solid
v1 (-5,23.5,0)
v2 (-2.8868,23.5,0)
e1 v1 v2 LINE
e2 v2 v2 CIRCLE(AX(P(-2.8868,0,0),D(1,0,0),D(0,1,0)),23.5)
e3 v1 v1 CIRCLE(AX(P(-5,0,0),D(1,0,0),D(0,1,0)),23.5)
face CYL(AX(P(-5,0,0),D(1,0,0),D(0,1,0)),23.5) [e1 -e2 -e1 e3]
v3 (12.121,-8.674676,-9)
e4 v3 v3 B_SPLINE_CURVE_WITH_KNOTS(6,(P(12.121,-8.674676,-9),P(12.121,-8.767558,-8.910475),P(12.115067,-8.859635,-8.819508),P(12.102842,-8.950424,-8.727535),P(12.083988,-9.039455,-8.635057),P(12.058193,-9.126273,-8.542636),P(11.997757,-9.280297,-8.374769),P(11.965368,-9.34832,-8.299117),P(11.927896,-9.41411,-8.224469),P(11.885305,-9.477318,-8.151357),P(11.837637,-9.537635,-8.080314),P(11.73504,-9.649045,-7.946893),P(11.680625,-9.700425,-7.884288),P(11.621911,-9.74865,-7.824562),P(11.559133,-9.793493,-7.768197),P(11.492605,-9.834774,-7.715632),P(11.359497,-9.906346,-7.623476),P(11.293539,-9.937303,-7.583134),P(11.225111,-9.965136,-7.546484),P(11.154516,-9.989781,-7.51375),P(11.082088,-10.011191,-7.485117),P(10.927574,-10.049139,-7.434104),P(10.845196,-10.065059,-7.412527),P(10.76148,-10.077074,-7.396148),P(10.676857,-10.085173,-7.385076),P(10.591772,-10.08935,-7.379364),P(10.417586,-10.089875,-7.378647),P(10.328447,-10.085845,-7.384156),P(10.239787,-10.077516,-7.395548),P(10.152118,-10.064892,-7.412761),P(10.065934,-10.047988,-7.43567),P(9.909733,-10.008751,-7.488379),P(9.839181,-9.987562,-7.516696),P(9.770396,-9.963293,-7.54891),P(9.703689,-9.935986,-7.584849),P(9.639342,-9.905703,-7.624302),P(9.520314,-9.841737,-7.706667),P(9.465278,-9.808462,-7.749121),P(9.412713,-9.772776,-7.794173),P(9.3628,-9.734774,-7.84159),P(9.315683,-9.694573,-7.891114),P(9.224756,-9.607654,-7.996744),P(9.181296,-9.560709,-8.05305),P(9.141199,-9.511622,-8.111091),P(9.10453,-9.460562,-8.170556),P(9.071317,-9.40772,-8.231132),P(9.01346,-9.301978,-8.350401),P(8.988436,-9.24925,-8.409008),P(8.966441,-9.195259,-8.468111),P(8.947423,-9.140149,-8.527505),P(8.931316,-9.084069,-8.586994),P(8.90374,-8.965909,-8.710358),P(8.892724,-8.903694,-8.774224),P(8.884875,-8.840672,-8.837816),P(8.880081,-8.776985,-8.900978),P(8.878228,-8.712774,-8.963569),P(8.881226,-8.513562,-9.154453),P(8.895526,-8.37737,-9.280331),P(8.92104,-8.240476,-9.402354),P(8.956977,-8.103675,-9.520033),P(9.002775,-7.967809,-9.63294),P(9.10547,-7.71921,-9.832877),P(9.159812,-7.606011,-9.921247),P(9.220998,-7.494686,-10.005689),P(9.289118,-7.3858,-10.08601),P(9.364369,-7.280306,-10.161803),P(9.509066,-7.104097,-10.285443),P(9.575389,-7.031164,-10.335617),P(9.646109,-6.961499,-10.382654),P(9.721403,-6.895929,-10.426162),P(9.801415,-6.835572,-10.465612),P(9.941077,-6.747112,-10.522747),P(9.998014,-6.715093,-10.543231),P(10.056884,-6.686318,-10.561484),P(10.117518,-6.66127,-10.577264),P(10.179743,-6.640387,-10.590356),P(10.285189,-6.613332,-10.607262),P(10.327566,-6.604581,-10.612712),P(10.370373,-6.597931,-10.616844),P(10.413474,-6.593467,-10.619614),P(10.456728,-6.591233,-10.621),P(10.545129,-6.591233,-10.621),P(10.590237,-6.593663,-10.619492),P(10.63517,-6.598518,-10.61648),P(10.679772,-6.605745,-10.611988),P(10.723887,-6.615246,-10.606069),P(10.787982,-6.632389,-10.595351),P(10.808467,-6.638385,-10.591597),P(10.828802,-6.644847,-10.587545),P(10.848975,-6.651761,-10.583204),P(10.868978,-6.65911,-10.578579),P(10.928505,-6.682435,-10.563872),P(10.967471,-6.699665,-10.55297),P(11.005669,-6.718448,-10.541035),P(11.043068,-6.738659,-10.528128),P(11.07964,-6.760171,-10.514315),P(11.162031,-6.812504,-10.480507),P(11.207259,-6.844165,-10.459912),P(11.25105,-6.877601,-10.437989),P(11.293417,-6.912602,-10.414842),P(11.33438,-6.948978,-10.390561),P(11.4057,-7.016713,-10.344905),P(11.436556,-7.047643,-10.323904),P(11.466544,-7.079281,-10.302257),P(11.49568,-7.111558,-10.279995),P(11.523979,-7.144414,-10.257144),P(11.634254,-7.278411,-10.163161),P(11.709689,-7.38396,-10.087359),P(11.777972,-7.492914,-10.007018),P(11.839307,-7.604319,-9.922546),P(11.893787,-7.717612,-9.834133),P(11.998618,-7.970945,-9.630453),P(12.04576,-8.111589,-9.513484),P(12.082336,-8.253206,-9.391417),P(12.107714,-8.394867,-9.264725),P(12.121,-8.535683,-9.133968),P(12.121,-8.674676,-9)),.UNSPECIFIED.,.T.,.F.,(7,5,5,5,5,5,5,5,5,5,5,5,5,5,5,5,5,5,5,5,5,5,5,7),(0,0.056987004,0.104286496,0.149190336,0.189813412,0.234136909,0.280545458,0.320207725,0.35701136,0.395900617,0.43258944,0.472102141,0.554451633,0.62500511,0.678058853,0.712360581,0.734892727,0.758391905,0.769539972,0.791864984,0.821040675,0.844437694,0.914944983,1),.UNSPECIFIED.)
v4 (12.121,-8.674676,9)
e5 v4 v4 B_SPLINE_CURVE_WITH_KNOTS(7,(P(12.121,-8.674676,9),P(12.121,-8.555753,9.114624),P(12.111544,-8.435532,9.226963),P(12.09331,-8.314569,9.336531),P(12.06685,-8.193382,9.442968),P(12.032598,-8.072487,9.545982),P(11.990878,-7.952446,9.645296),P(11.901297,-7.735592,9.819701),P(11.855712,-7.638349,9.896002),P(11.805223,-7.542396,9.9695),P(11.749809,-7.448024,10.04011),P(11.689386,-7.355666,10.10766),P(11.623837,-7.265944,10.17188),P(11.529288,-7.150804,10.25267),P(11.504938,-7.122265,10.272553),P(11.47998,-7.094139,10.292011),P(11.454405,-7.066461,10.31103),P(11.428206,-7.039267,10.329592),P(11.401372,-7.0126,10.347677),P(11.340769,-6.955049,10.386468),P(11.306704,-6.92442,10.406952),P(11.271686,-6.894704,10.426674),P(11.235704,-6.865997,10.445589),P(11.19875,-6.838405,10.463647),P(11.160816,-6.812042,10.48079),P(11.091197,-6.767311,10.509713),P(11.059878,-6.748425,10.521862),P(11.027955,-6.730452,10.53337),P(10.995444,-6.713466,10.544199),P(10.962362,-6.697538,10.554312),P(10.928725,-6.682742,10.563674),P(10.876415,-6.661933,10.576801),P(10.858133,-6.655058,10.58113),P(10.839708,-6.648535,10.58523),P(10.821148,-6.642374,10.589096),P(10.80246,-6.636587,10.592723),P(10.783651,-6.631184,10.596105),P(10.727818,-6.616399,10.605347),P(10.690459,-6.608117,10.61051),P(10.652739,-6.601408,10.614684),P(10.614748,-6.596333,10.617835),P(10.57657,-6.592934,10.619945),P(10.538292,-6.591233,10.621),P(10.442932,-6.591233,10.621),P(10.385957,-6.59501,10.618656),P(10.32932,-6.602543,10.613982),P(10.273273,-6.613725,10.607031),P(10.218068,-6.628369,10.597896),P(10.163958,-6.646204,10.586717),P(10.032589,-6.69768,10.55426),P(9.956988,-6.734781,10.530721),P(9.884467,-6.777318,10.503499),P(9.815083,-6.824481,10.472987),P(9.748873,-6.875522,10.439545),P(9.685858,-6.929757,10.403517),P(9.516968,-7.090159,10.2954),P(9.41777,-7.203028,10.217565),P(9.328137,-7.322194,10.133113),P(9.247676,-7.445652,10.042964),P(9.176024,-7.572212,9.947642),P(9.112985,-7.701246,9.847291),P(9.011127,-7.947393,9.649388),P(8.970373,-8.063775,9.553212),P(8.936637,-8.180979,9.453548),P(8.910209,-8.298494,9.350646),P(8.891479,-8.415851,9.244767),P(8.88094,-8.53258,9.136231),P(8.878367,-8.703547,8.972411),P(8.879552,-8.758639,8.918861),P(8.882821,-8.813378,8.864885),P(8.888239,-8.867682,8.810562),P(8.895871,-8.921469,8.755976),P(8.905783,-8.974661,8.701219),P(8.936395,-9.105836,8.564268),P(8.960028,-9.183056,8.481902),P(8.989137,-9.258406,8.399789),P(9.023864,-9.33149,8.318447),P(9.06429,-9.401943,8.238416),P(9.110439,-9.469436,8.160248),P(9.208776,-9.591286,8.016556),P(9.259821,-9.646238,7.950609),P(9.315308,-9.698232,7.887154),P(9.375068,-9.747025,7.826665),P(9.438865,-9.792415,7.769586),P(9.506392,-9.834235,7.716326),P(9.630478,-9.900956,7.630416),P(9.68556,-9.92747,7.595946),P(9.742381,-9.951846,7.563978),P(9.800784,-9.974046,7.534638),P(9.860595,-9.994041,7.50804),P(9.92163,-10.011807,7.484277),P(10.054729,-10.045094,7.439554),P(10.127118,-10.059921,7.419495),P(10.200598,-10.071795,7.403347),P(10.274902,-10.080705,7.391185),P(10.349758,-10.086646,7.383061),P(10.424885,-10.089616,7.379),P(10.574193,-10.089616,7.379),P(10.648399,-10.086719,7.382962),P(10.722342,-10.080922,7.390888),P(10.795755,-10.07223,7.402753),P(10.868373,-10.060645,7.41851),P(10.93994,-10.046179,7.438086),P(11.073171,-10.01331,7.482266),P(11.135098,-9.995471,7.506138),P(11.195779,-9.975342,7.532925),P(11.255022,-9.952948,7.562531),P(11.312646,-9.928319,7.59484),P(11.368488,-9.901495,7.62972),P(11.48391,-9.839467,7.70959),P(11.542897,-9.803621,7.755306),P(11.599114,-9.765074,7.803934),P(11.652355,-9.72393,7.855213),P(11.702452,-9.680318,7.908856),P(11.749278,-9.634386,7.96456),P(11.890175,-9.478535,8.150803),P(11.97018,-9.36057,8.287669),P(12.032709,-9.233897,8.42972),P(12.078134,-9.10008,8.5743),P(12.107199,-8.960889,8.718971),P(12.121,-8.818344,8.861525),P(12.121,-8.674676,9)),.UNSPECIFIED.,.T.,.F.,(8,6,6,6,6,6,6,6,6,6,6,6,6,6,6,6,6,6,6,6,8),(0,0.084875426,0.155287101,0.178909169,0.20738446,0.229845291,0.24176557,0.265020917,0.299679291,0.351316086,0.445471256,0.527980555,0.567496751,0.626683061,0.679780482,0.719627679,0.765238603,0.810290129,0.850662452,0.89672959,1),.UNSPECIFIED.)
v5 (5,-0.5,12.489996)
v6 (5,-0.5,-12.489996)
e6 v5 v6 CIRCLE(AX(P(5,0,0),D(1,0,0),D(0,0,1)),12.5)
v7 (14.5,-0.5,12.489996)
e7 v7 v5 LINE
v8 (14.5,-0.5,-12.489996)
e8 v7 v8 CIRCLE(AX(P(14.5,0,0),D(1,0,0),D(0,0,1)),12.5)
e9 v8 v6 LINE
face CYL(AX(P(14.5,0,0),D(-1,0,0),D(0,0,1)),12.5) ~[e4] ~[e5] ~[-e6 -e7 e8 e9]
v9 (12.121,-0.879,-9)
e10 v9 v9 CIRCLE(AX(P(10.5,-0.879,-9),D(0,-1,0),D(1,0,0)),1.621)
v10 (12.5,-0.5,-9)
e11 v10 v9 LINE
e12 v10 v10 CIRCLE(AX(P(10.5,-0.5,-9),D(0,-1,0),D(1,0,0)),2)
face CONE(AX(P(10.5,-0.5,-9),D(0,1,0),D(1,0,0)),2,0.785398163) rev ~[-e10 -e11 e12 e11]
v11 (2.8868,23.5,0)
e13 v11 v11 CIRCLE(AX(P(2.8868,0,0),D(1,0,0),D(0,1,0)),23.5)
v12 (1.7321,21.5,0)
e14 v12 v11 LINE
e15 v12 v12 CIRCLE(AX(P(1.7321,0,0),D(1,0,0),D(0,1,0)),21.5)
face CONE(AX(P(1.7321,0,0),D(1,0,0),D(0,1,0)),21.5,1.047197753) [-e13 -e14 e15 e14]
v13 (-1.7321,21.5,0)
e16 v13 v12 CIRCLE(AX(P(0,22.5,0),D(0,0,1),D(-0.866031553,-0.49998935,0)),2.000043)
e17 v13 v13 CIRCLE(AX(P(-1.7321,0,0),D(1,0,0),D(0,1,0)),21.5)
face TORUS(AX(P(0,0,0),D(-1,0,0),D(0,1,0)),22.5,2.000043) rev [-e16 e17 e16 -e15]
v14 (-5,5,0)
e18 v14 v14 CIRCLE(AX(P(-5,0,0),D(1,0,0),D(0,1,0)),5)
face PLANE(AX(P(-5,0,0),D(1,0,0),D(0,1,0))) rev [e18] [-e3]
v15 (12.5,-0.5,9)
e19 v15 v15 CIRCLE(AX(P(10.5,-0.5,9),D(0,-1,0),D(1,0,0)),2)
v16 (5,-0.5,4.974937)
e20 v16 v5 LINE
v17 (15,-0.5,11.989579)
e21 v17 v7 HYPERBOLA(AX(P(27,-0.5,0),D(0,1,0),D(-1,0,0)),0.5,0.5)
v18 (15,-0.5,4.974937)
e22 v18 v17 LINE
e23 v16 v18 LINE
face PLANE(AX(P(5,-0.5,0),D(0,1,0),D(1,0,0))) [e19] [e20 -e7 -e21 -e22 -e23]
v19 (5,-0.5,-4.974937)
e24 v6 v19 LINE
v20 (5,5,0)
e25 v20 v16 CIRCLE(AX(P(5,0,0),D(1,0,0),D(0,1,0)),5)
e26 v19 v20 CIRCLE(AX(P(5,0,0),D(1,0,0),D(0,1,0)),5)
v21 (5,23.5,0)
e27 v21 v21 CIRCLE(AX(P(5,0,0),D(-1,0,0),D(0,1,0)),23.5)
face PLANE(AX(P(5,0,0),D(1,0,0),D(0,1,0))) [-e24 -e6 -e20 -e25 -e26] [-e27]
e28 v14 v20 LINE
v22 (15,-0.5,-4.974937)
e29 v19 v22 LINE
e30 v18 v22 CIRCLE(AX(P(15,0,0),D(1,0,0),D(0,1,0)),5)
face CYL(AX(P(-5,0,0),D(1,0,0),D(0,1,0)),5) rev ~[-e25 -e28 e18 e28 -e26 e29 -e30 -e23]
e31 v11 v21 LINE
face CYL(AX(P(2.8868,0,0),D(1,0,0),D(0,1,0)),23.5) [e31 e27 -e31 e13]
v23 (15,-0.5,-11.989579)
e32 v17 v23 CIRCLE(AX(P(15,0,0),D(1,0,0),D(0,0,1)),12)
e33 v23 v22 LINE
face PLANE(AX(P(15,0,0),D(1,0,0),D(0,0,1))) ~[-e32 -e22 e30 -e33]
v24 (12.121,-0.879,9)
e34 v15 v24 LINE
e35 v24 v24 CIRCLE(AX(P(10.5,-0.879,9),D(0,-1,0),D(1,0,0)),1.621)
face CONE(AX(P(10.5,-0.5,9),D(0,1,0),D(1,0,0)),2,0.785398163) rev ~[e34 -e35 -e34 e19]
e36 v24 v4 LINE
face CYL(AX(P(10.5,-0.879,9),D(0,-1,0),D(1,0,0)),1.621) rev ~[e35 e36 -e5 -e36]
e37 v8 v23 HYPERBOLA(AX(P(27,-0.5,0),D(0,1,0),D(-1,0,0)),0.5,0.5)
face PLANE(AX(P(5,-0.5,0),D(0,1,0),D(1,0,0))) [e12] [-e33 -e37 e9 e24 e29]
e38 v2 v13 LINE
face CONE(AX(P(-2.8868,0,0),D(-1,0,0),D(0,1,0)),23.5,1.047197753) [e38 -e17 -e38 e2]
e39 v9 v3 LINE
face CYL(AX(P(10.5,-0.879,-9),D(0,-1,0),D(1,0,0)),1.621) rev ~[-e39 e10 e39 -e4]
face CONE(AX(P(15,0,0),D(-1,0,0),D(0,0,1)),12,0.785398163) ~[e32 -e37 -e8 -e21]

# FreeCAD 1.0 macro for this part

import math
import FreeCAD as App
import Part
import Sketcher
Q = App.Units.Quantity


def add_polygon(sketch, points):
    """Adds a closed chain of lines whose ends are joined by coincident constraints."""
    first, n = sketch.GeometryCount, len(points)
    for a, b in zip(points, points[1:] + points[:1]):
        sketch.addGeometry(Part.LineSegment(App.Vector(*a, 0), App.Vector(*b, 0)), False)
    for i in range(n):
        sketch.addConstraint(Sketcher.Constraint("Coincident", first + i, 2, first + (i + 1) % n, 1))

doc = App.newDocument("Part")
body = doc.addObject("PartDesign::Body", "Body")

sketch1 = body.newObject("Sketcher::SketchObject", "Sketch")
sketch1.AttachmentSupport = (doc.getObject("XY_Plane"), [""])
sketch1.MapMode = "FlatFace"
sketch1.addGeometry([
    Part.LineSegment(App.Vector(-5, 0, 0), App.Vector(5, 0, 0)),
    Part.LineSegment(App.Vector(5, 0, 0), App.Vector(5, 23.5, 0)),
    Part.LineSegment(App.Vector(5, 23.5, 0), App.Vector(2.9, 23.5, 0)),
    Part.LineSegment(App.Vector(2.9, 23.5, 0), App.Vector(1.7, 21.5, 0)),
    Part.ArcOfCircle(Part.Circle(App.Vector(0, 22.5, 0), App.Vector(0, 0, 1), 2), math.radians(-150), math.radians(-30)),
    Part.LineSegment(App.Vector(-1.7, 21.5, 0), App.Vector(-2.9, 23.5, 0)),
    Part.LineSegment(App.Vector(-2.9, 23.5, 0), App.Vector(-5, 23.5, 0)),
    Part.LineSegment(App.Vector(-5, 23.5, 0), App.Vector(-5, 0, 0)),
], False)
sketch1.addConstraint([
    Sketcher.Constraint("Coincident", 0, 2, 1, 1),
    Sketcher.Constraint("Coincident", 1, 2, 2, 1),
    Sketcher.Constraint("Coincident", 2, 2, 3, 1),
    Sketcher.Constraint("Tangent", 3, 2, 4, 2),
    Sketcher.Constraint("Tangent", 4, 1, 5, 1),
    Sketcher.Constraint("Coincident", 5, 2, 6, 1),
    Sketcher.Constraint("Coincident", 6, 2, 7, 1),
    Sketcher.Constraint("Coincident", 7, 2, 0, 1),
    Sketcher.Constraint("Horizontal", 0),
    Sketcher.Constraint("Vertical", 1),
    Sketcher.Constraint("Horizontal", 2),
    Sketcher.Constraint("Horizontal", 6),
    Sketcher.Constraint("Vertical", 7),
    Sketcher.Constraint("Symmetric", 0, 2, 7, 2, -1, 1),
    Sketcher.Constraint("Symmetric", 3, 2, 4, 1, -2),
    Sketcher.Constraint("Horizontal", 2, 2, 5, 2),
    Sketcher.Constraint("Radius", 4, Q("2 mm")),
    Sketcher.Constraint("DistanceX", 0, 1, 0, 2, Q("10 mm")),
    Sketcher.Constraint("Angle", 3, Q("-120 deg")),
    Sketcher.Constraint("DistanceY", 1, 1, 1, 2, Q("23.5 mm")),
    Sketcher.Constraint("DistanceY", 4, 3, 1, 2, Q("1 mm")),
])
revolution = body.newObject("PartDesign::Revolution", "Revolution")
revolution.Profile = sketch1
revolution.ReferenceAxis = (sketch1, ["H_Axis"])
revolution.Angle = 360

sketch2 = body.newObject("Sketcher::SketchObject", "Sketch001")
sketch2.AttachmentSupport = (doc.getObject("XY_Plane"), [""])
sketch2.MapMode = "FlatFace"
add_polygon(sketch2, [(15, 0), (5, 0), (5, -12.5), (14.5, -12.5), (15, -12)])
sketch2.addConstraint([
    Sketcher.Constraint("Horizontal", 0),
    Sketcher.Constraint("Vertical", 1),
    Sketcher.Constraint("Horizontal", 2),
    Sketcher.Constraint("Vertical", 4),
    Sketcher.Constraint("PointOnObject", 0, 2, -1),
    Sketcher.Constraint("DistanceX", 0, 2, 0, 1, Q("10 mm")),
    Sketcher.Constraint("DistanceY", 4, 1, 4, 2, Q("12 mm")),
    Sketcher.Constraint("Angle", 3, Q("45 deg")),
    Sketcher.Constraint("DistanceX", 2, 1, 2, 2, Q("9.5 mm")),
    Sketcher.Constraint("DistanceX", -1, 1, 0, 2, Q("5 mm")),
])
revolution2 = body.newObject("PartDesign::Revolution", "Revolution001")
revolution2.Profile = sketch2
revolution2.ReferenceAxis = (sketch2, ["H_Axis"])
revolution2.Angle = 180
revolution2.Midplane = True

sketch3 = body.newObject("Sketcher::SketchObject", "Sketch002")
sketch3.AttachmentSupport = (doc.getObject("XY_Plane"), [""])
sketch3.MapMode = "FlatFace"
add_polygon(sketch3, [(5, 0), (5, -0.5), (15, -0.5), (15, 0)])
sketch3.addConstraint([
    Sketcher.Constraint("Vertical", 0),
    Sketcher.Constraint("Horizontal", 1),
    Sketcher.Constraint("Vertical", 2),
    Sketcher.Constraint("Horizontal", 3),
    Sketcher.Constraint("PointOnObject", 2, 2, -1),
    Sketcher.Constraint("DistanceX", 1, 1, 1, 2, Q("10 mm")),
    Sketcher.Constraint("DistanceY", 0, 2, 0, 1, Q("0.5 mm")),
    Sketcher.Constraint("DistanceX", -1, 1, 0, 2, Q("5 mm")),
])
pocket1 = body.newObject("PartDesign::Pocket", "Pocket")
pocket1.Profile = sketch3
pocket1.Length = 50
pocket1.Midplane = True

sketch4 = body.newObject("Sketcher::SketchObject", "Sketch003")
sketch4.AttachmentSupport = (doc.getObject("XY_Plane"), [""])
sketch4.MapMode = "FlatFace"
add_polygon(sketch4, [(-5, 0), (15, 0), (15, 5), (-5, 5)])
sketch4.addConstraint([
    Sketcher.Constraint("Horizontal", 0),
    Sketcher.Constraint("Vertical", 1),
    Sketcher.Constraint("Horizontal", 2),
    Sketcher.Constraint("Vertical", 3),
    Sketcher.Constraint("PointOnObject", 0, 2, -1),
    Sketcher.Constraint("DistanceX", 0, 1, 0, 2, Q("20 mm")),
    Sketcher.Constraint("DistanceY", 1, 1, 1, 2, Q("5 mm")),
    Sketcher.Constraint("DistanceX", -1, 1, 0, 2, Q("15 mm")),
])
groove = body.newObject("PartDesign::Groove", "Groove")
groove.Profile = sketch4
groove.ReferenceAxis = (sketch4, ["H_Axis"])
groove.Angle = 360

sketch5 = body.newObject("Sketcher::SketchObject", "Sketch004")
sketch5.AttachmentSupport = (doc.getObject("XY_Plane"), [""])
sketch5.MapMode = "FlatFace"
sketch5.AttachmentOffset = App.Placement(App.Vector(0, 0, 9), App.Rotation())
add_polygon(sketch5, [(10.5, -0.5), (10.5, -12.5), (12.5, -12.5), (12.1, -12.1), (12.1, -0.9), (12.5, -0.5)])
sketch5.addGeometry(Part.LineSegment(App.Vector(10.5, -0.5, 0), App.Vector(10.5, -12.5, 0)), True)
sketch5.addConstraint([
    Sketcher.Constraint("Vertical", 0),
    Sketcher.Constraint("Horizontal", 1),
    Sketcher.Constraint("Vertical", 3),
    Sketcher.Constraint("Horizontal", 5),
    Sketcher.Constraint("Vertical", 6),
    Sketcher.Constraint("Coincident", 6, 1, 5, 2),
    Sketcher.Constraint("Perpendicular", 2, 4),
    Sketcher.Constraint("Horizontal", 1, 2, 6, 2),
    Sketcher.Constraint("Vertical", 1, 2, 4, 2),
    Sketcher.Constraint("Equal", 2, 4),
    Sketcher.Constraint("DistanceX", 1, 1, 1, 2, Q("2 mm")),
    Sketcher.Constraint("DistanceY", 0, 2, 0, 1, Q("12 mm")),
    Sketcher.Constraint("DistanceX", -1, 1, 0, 2, Q("10.5 mm")),
    Sketcher.Constraint("DistanceY", 0, 2, -1, 1, Q("12.5 mm")),
    Sketcher.Constraint("DistanceY", 3, 1, 3, 2, Q("11.242 mm")),
])
groove2 = body.newObject("PartDesign::Groove", "Groove001")
groove2.Profile = sketch5
groove2.ReferenceAxis = (sketch5, ["Axis0"])
groove2.Angle = 360

sketch6 = body.newObject("Sketcher::SketchObject", "Sketch005")
sketch6.AttachmentSupport = (doc.getObject("XY_Plane"), [""])
sketch6.MapMode = "FlatFace"
sketch6.AttachmentOffset = App.Placement(App.Vector(0, 0, -9), App.Rotation())
add_polygon(sketch6, [(10.5, -0.5), (10.5, -12.5), (12.5, -12.5), (12.1, -12.1), (12.1, -0.9), (12.5, -0.5)])
sketch6.addGeometry(Part.LineSegment(App.Vector(10.5, -0.5, 0), App.Vector(10.5, -12.5, 0)), True)
sketch6.addConstraint([
    Sketcher.Constraint("Vertical", 0),
    Sketcher.Constraint("Horizontal", 1),
    Sketcher.Constraint("Vertical", 3),
    Sketcher.Constraint("Horizontal", 5),
    Sketcher.Constraint("Vertical", 6),
    Sketcher.Constraint("Coincident", 6, 1, 5, 2),
    Sketcher.Constraint("Perpendicular", 2, 4),
    Sketcher.Constraint("Horizontal", 1, 2, 6, 2),
    Sketcher.Constraint("Vertical", 1, 2, 4, 2),
    Sketcher.Constraint("Equal", 2, 4),
    Sketcher.Constraint("DistanceX", 1, 1, 1, 2, Q("2 mm")),
    Sketcher.Constraint("DistanceY", 0, 2, 0, 1, Q("12 mm")),
    Sketcher.Constraint("DistanceX", -1, 1, 0, 2, Q("10.5 mm")),
    Sketcher.Constraint("DistanceY", 0, 2, -1, 1, Q("12.5 mm")),
    Sketcher.Constraint("DistanceY", 3, 1, 3, 2, Q("11.242 mm")),
])
groove3 = body.newObject("PartDesign::Groove", "Groove002")
groove3.Profile = sketch6
groove3.ReferenceAxis = (sketch6, ["Axis0"])
groove3.Angle = 360

doc.recompute()
